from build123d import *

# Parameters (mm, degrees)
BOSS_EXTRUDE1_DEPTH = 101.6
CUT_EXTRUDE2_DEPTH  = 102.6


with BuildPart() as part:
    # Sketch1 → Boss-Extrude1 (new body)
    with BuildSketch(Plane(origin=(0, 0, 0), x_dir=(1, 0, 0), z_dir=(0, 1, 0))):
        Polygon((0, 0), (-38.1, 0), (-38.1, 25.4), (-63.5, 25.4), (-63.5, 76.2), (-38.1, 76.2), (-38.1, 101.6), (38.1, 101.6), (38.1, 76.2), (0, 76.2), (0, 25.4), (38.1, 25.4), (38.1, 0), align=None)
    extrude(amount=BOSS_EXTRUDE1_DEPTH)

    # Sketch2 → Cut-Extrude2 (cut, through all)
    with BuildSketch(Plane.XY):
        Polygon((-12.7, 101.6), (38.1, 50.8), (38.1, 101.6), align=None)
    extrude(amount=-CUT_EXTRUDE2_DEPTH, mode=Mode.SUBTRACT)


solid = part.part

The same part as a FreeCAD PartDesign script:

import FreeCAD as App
import Part
import Sketcher
Q = App.Units.Quantity


def add_polygon(sketch, points):
    """Adds a closed chain of lines whose ends are joined by coincident constraints."""
    first, n = sketch.GeometryCount, len(points)
    for a, b in zip(points, points[1:] + points[:1]):
        sketch.addGeometry(Part.LineSegment(App.Vector(*a, 0), App.Vector(*b, 0)), False)
    for i in range(n):
        sketch.addConstraint(Sketcher.Constraint("Coincident", first + i, 2, first + (i + 1) % n, 1))

doc = App.newDocument("Part")
body = doc.addObject("PartDesign::Body", "Body")

# Sketch on XZ plane
sketch1 = doc.addObject("Sketcher::SketchObject", "Sketch")
body.addObject(sketch1)
sketch1.AttachmentSupport = (doc.XZ_Plane, [""])
sketch1.MapMode = "FlatFace"
add_polygon(sketch1, [(-38.1, 0), (38.1, 0), (38.1, -25.4), (0, -25.4), (0, -76.2), (38.1, -76.2), (38.1, -101.6), (-38.1, -101.6), (-38.1, -76.2), (-63.5, -76.2), (-63.5, -25.4), (-38.1, -25.4)])  # lines 0-11
sketch1.addConstraint(Sketcher.Constraint("Horizontal", 0))
sketch1.addConstraint(Sketcher.Constraint("Vertical", 1))
sketch1.addConstraint(Sketcher.Constraint("Horizontal", 2))
sketch1.addConstraint(Sketcher.Constraint("Vertical", 3))
sketch1.addConstraint(Sketcher.Constraint("Horizontal", 4))
sketch1.addConstraint(Sketcher.Constraint("Vertical", 5))
sketch1.addConstraint(Sketcher.Constraint("Horizontal", 6))
sketch1.addConstraint(Sketcher.Constraint("Vertical", 7))
sketch1.addConstraint(Sketcher.Constraint("Horizontal", 8))
sketch1.addConstraint(Sketcher.Constraint("Vertical", 9))
sketch1.addConstraint(Sketcher.Constraint("Horizontal", 10))
sketch1.addConstraint(Sketcher.Constraint("Vertical", 11))
sketch1.addConstraint(Sketcher.Constraint("Symmetric", 0, 2, 11, 2, -1, 1))
sketch1.addConstraint(Sketcher.Constraint("Symmetric", 4, 2, 7, 2, -2))
sketch1.addConstraint(Sketcher.Constraint("PointOnObject", 2, 2, -2))
sketch1.addConstraint(Sketcher.Constraint("Horizontal", 2, 2, 9, 2))
sketch1.addConstraint(Sketcher.Constraint("Vertical", 1, 2, 4, 2))
sketch1.addConstraint(Sketcher.Constraint("Equal", 10, 1))
sketch1.addConstraint(Sketcher.Constraint("Equal", 1, 5))
sketch1.addConstraint(Sketcher.Constraint("DistanceX", 0, 1, 0, 2, Q("3 in")))
sketch1.addConstraint(Sketcher.Constraint("DistanceX", 8, 2, 8, 1, Q("1 in")))
sketch1.addConstraint(Sketcher.Constraint("DistanceY", 3, 2, 3, 1, Q("2 in")))
pad1 = doc.addObject("PartDesign::Pad", "Pad")
body.addObject(pad1)
pad1.Profile = sketch1
pad1.Length = Q("4 in")
pad1.Reversed = True

# Sketch on XY plane
sketch2 = doc.addObject("Sketcher::SketchObject", "Sketch001")
body.addObject(sketch2)
sketch2.AttachmentSupport = (doc.XY_Plane, [""])
sketch2.MapMode = "FlatFace"
add_polygon(sketch2, [(-12.7, 101.6), (38.1, 50.8), (38.1, 101.6)])  # lines 0-2
sketch2.addConstraint(Sketcher.Constraint("Vertical", 1))
sketch2.addConstraint(Sketcher.Constraint("Horizontal", 2))
sketch2.addConstraint(Sketcher.Constraint("Equal", 2, 1))
sketch2.addConstraint(Sketcher.Constraint("DistanceX", 2, 2, 2, 1, Q("2 in")))
sketch2.addConstraint(Sketcher.Constraint("DistanceY", -1, 1, 0, 2, Q("2 in")))
sketch2.addConstraint(Sketcher.Constraint("DistanceX", -1, 1, 0, 2, Q("1.5 in")))
pocket1 = doc.addObject("PartDesign::Pocket", "Pocket")
body.addObject(pocket1)
pocket1.Profile = sketch2
pocket1.Type = "ThroughAll"

doc.recompute()
